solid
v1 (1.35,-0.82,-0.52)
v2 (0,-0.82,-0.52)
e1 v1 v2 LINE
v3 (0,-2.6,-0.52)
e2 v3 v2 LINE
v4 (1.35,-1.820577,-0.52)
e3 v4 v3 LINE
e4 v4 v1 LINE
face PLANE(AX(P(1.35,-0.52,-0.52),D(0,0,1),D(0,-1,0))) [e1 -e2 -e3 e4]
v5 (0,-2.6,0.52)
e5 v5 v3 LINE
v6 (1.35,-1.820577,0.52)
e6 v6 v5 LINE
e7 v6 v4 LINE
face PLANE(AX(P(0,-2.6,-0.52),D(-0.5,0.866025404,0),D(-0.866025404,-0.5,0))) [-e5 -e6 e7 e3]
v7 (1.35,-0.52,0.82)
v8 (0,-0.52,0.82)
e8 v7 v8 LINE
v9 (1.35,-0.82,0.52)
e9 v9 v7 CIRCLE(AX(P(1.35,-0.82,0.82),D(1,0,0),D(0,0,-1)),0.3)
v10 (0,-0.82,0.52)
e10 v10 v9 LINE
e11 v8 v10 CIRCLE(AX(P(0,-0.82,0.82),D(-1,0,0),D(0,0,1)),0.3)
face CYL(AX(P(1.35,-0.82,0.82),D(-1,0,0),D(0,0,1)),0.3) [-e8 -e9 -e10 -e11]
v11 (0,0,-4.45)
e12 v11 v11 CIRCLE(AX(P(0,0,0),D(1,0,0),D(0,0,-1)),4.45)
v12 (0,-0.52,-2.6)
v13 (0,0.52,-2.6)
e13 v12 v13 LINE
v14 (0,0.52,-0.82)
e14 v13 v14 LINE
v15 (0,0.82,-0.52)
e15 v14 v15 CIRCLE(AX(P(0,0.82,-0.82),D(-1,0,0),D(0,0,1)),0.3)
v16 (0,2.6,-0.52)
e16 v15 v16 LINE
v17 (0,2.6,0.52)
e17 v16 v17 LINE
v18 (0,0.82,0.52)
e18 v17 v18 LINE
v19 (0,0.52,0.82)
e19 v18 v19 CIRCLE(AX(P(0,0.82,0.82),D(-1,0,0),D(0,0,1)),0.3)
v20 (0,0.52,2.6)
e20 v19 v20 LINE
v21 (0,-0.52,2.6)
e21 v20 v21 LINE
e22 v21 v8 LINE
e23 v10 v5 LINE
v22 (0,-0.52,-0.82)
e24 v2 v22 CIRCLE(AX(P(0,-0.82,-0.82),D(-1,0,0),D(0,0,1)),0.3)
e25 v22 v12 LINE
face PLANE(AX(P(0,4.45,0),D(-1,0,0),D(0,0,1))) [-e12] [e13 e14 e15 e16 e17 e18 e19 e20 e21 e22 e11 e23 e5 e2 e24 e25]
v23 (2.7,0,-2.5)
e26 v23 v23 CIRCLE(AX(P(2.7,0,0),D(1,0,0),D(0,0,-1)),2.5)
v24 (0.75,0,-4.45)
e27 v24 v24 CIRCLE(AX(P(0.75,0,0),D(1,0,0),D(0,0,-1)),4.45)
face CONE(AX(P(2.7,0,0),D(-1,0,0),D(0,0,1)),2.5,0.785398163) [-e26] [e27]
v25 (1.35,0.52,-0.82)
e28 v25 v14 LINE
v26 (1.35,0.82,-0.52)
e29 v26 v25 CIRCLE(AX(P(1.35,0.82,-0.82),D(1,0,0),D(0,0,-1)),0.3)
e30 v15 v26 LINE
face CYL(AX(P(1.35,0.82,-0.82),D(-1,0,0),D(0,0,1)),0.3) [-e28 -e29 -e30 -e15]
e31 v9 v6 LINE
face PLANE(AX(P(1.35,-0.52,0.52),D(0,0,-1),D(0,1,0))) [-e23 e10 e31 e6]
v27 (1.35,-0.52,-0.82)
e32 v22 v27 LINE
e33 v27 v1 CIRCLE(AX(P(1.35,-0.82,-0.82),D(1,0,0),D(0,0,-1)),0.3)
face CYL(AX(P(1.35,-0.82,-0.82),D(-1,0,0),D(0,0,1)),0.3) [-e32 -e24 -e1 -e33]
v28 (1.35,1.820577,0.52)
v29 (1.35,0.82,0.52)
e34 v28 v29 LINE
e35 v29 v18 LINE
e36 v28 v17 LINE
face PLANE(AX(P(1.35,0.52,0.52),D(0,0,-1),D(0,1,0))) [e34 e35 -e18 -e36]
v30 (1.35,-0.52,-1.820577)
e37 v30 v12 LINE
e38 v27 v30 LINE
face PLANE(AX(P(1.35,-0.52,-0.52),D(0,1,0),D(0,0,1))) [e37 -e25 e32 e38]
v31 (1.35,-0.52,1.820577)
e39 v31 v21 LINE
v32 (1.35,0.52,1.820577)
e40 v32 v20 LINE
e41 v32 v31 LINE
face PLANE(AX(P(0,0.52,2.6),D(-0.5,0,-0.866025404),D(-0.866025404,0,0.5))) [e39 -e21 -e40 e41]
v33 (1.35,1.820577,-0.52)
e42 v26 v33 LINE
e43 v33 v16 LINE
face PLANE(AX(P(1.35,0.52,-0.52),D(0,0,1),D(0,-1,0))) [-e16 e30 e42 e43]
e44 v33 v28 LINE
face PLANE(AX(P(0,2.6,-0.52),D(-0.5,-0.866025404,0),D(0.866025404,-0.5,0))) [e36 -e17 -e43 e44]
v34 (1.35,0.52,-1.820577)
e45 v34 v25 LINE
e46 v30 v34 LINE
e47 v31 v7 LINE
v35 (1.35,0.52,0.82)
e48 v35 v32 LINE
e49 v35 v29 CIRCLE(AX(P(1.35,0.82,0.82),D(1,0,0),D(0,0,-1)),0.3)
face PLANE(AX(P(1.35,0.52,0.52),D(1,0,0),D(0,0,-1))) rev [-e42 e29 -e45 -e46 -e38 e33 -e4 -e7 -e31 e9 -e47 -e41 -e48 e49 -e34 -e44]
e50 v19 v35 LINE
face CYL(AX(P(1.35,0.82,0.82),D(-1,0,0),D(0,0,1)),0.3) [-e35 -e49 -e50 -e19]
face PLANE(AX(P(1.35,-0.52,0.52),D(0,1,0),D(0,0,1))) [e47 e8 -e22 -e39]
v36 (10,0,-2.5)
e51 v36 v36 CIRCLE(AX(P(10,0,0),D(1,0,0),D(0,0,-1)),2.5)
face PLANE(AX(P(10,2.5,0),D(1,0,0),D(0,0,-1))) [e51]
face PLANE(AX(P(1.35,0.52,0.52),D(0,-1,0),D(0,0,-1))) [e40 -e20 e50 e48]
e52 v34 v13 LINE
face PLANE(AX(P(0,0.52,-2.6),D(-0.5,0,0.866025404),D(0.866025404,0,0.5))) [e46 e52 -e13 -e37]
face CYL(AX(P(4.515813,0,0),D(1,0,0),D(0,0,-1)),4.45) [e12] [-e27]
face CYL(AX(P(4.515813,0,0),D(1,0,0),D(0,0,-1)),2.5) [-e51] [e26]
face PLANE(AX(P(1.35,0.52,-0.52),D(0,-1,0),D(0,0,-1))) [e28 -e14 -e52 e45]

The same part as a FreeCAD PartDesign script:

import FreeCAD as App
import Part
import Sketcher
from FreeCAD import Vector
Q = App.Units.Quantity


def edges_at(feature, points):
    """Names of the edges that pass closest to the given points."""
    edges = feature.Shape.Edges
    near = lambda p: min(range(len(edges)), key=lambda i: edges[i].distToShape(Part.Vertex(*p))[0])
    return sorted({f"Edge{near(p) + 1}" for p in points})


def faces_at(feature, points):
    """Names of the faces that lie closest to the given points."""
    faces = feature.Shape.Faces
    near = lambda p: min(range(len(faces)), key=lambda i: faces[i].distToShape(Part.Vertex(*p))[0])
    return sorted({f"Face{near(p) + 1}" for p in points})

doc = App.newDocument("Part")
body = doc.addObject("PartDesign::Body", "Body")

sketch1 = body.newObject("Sketcher::SketchObject", "Sketch")
sketch1.AttachmentSupport = (doc.getObject("XY_Plane"), [""])
sketch1.MapMode = "FlatFace"
sketch1.addGeometry([
    Part.LineSegment(Vector(10, 2.5, 0), Vector(2.7, 2.5, 0)),
    Part.LineSegment(Vector(2.7, 2.5, 0), Vector(0.75, 4.45, 0)),
    Part.LineSegment(Vector(0.75, 4.45, 0), Vector(0, 4.45, 0)),
    Part.LineSegment(Vector(0, 4.45, 0), Vector(0, 0, 0)),
    Part.LineSegment(Vector(0, 0, 0), Vector(10, 0, 0)),
    Part.LineSegment(Vector(10, 0, 0), Vector(10, 2.5, 0)),
], False)
sketch1.addConstraint([
    Sketcher.Constraint("Coincident", 0, 2, 1, 1),
    Sketcher.Constraint("Coincident", 1, 2, 2, 1),
    Sketcher.Constraint("Coincident", 2, 2, 3, 1),
    Sketcher.Constraint("Coincident", 3, 2, 4, 1),
    Sketcher.Constraint("Coincident", 4, 2, 5, 1),
    Sketcher.Constraint("Coincident", 5, 2, 0, 1),
    Sketcher.Constraint("Horizontal", 0),
    Sketcher.Constraint("Horizontal", 2),
    Sketcher.Constraint("Vertical", 3),
    Sketcher.Constraint("Horizontal", 4),
    Sketcher.Constraint("Vertical", 5),
    Sketcher.Constraint("Coincident", 3, 2, -1, 1),
    Sketcher.Constraint("DistanceX", 4, 1, 4, 2, 10.0),
    Sketcher.Constraint("Angle", 1, Q("135 deg")),
    Sketcher.Constraint("DistanceX", 0, 2, 0, 1, 7.3),
    Sketcher.Constraint("DistanceY", 5, 1, 5, 2, 2.5),
    Sketcher.Constraint("DistanceX", 2, 2, 2, 1, 0.75),
])
revolution = body.newObject("PartDesign::Revolution", "Revolution")
revolution.Profile = sketch1
revolution.ReferenceAxis = (sketch1, ["H_Axis"])
revolution.Angle = 360

sketch2 = body.newObject("Sketcher::SketchObject", "Sketch001")
sketch2.AttachmentSupport = (doc.getObject("YZ_Plane"), [""])
sketch2.MapMode = "FlatFace"
sketch2.addGeometry([
    Part.LineSegment(Vector(0.52, -0.52, 0), Vector(2.6, -0.52, 0)),
    Part.LineSegment(Vector(2.6, -0.52, 0), Vector(2.6, 0.52, 0)),
    Part.LineSegment(Vector(2.6, 0.52, 0), Vector(0.52, 0.52, 0)),
    Part.LineSegment(Vector(0.52, 0.52, 0), Vector(0.52, 2.6, 0)),
    Part.LineSegment(Vector(0.52, 2.6, 0), Vector(-0.52, 2.6, 0)),
    Part.LineSegment(Vector(-0.52, 2.6, 0), Vector(-0.52, 0.52, 0)),
    Part.LineSegment(Vector(-0.52, 0.52, 0), Vector(-2.6, 0.52, 0)),
    Part.LineSegment(Vector(-2.6, 0.52, 0), Vector(-2.6, -0.52, 0)),
    Part.LineSegment(Vector(-2.6, -0.52, 0), Vector(-0.52, -0.52, 0)),
    Part.LineSegment(Vector(-0.52, -0.52, 0), Vector(-0.52, -2.6, 0)),
    Part.LineSegment(Vector(-0.52, -2.6, 0), Vector(0.52, -2.6, 0)),
    Part.LineSegment(Vector(0.52, -2.6, 0), Vector(0.52, -0.52, 0)),
], False)
sketch2.addConstraint([
    Sketcher.Constraint("Coincident", 0, 2, 1, 1),
    Sketcher.Constraint("Coincident", 1, 2, 2, 1),
    Sketcher.Constraint("Coincident", 2, 2, 3, 1),
    Sketcher.Constraint("Coincident", 3, 2, 4, 1),
    Sketcher.Constraint("Coincident", 4, 2, 5, 1),
    Sketcher.Constraint("Coincident", 5, 2, 6, 1),
    Sketcher.Constraint("Coincident", 6, 2, 7, 1),
    Sketcher.Constraint("Coincident", 7, 2, 8, 1),
    Sketcher.Constraint("Coincident", 8, 2, 9, 1),
    Sketcher.Constraint("Coincident", 9, 2, 10, 1),
    Sketcher.Constraint("Coincident", 10, 2, 11, 1),
    Sketcher.Constraint("Coincident", 11, 2, 0, 1),
    Sketcher.Constraint("Horizontal", 0),
    Sketcher.Constraint("Vertical", 1),
    Sketcher.Constraint("Horizontal", 2),
    Sketcher.Constraint("Vertical", 3),
    Sketcher.Constraint("Horizontal", 4),
    Sketcher.Constraint("Vertical", 5),
    Sketcher.Constraint("Horizontal", 6),
    Sketcher.Constraint("Vertical", 7),
    Sketcher.Constraint("Horizontal", 8),
    Sketcher.Constraint("Vertical", 9),
    Sketcher.Constraint("Horizontal", 10),
    Sketcher.Constraint("Vertical", 11),
    Sketcher.Constraint("Symmetric", 0, 2, 6, 2, -1, 1),
    Sketcher.Constraint("Symmetric", 2, 2, 8, 2, -1, 1),
    Sketcher.Constraint("Symmetric", 4, 2, 10, 2, -1, 1),
    Sketcher.Constraint("Symmetric", 2, 2, 5, 2, -2),
    Sketcher.Constraint("Equal", 10, 1),
    Sketcher.Constraint("Equal", 8, 3),
    Sketcher.Constraint("DistanceX", 0, 1, 0, 2, 2.08),
    Sketcher.Constraint("DistanceX", 4, 2, 4, 1, 1.04),
])
pocket1 = body.newObject("PartDesign::Pocket", "Pocket")
pocket1.Profile = sketch2
pocket1.Length = 1.35
pocket1.Reversed = True
doc.recompute()

draft = body.newObject("PartDesign::Draft", "Draft")
draft.Base = (pocket1, faces_at(pocket1, [
    (0.675, -2.6, 0),
    (0.675, 0, 2.6),
    (0.675, 0, -2.6),
    (0.675, 2.6, 0),
]))
draft.NeutralPlane = (doc.getObject("YZ_Plane"), [""])
draft.Angle = 30
draft.Reversed = True
doc.recompute()

fillet = body.newObject("PartDesign::Fillet", "Fillet")
fillet.Base = (draft, edges_at(draft, [
    (0.675, 0.52, 0.52),
    (0.675, -0.52, 0.52),
    (0.675, -0.52, -0.52),
    (0.675, 0.52, -0.52),
]))
fillet.Radius = 0.3

sketch3 = body.newObject("Sketcher::SketchObject", "Sketch002")
sketch3.AttachmentSupport = (doc.getObject("XY_Plane"), [""])
sketch3.MapMode = "FlatFace"
sketch3.addGeometry([
    Part.LineSegment(Vector(2.7, 2.5, 0), Vector(2.7, 0, 0)),
    Part.LineSegment(Vector(2.7, 0, 0), Vector(3.5, 0, 0)),
    Part.LineSegment(Vector(3.5, 0, 0), Vector(3.5, 2.5, 0)),
    Part.LineSegment(Vector(3.5, 2.5, 0), Vector(2.7, 2.5, 0)),
], False)
sketch3.addConstraint([
    Sketcher.Constraint("Coincident", 0, 2, 1, 1),
    Sketcher.Constraint("Coincident", 1, 2, 2, 1),
    Sketcher.Constraint("Coincident", 2, 2, 3, 1),
    Sketcher.Constraint("Coincident", 3, 2, 0, 1),
    Sketcher.Constraint("Vertical", 0),
    Sketcher.Constraint("Horizontal", 1),
    Sketcher.Constraint("Vertical", 2),
    Sketcher.Constraint("Horizontal", 3),
    Sketcher.Constraint("PointOnObject", 0, 2, -1),
    Sketcher.Constraint("DistanceX", 1, 1, 1, 2, 0.8),
    Sketcher.Constraint("DistanceY", 0, 2, 0, 1, 2.5),
    Sketcher.Constraint("DistanceX", -1, 1, 0, 2, 2.7),
])
revolution2 = body.newObject("PartDesign::Revolution", "Revolution001")
revolution2.Profile = sketch3
revolution2.ReferenceAxis = (sketch3, ["H_Axis"])
revolution2.Angle = 360

doc.recompute()
